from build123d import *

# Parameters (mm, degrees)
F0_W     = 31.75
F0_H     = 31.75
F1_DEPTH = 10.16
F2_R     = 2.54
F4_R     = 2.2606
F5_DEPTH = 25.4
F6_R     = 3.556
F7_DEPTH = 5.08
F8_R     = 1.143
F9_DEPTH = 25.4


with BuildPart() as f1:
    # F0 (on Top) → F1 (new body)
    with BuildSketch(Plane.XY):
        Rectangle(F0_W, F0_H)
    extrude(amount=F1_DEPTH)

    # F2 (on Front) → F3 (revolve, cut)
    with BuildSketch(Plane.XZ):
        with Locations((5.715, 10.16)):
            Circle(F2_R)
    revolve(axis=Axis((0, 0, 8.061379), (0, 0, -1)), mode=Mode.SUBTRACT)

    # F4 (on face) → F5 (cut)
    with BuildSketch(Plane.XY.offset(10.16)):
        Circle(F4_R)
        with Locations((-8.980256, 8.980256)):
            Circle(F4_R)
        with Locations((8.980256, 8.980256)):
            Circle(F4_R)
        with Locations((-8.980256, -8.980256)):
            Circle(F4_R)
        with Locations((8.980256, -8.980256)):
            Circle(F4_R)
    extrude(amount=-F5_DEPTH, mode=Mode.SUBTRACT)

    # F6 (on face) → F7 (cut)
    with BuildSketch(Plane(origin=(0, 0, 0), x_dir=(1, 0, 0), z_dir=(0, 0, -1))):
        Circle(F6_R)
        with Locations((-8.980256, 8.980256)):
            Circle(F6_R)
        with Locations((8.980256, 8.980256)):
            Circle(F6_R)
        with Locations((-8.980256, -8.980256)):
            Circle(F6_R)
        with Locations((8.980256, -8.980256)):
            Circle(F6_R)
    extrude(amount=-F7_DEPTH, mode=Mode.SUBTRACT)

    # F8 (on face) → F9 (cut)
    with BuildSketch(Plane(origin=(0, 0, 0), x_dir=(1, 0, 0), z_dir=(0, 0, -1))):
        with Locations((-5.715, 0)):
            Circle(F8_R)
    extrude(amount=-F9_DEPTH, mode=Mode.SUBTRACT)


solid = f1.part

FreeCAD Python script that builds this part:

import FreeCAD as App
import Part
import Sketcher
Q = App.Units.Quantity


def add_polygon(sketch, points):
    """Adds a closed chain of lines whose ends are joined by coincident constraints."""
    first, n = sketch.GeometryCount, len(points)
    for a, b in zip(points, points[1:] + points[:1]):
        sketch.addGeometry(Part.LineSegment(App.Vector(*a, 0), App.Vector(*b, 0)), False)
    for i in range(n):
        sketch.addConstraint(Sketcher.Constraint("Coincident", first + i, 2, first + (i + 1) % n, 1))

doc = App.newDocument("Part")
params = doc.addObject("Spreadsheet::Sheet", "Params")
for row, (alias, value) in enumerate([
    ("sketch1_width", "1.25 in"),
    ("pad1_length", "0.4 in"),
    ("sketch2_diameter", "0.2 in"),
    ("groove_angle", "360 deg"),
    ("sketch3_diameter", "0.178 in"),
    ("pocket1_length", "1 in"),
    ("sketch4_diameter", "0.28 in"),
    ("pocket2_length", "0.2 in"),
    ("sketch5_diameter", "0.09 in"),
    ("pocket3_length", "1 in"),
], start=1):
    params.set(f"A{row}", alias)
    params.set(f"B{row}", "=" + value)
    params.setAlias(f"B{row}", alias)

body = doc.addObject("PartDesign::Body", "Body")

sketch1 = body.newObject("Sketcher::SketchObject", "Sketch")
sketch1.AttachmentSupport = (doc.getObject("XY_Plane"), [""])
sketch1.MapMode = "FlatFace"
add_polygon(sketch1, [(-16, 16), (-16, -16), (16, -16), (16, 16)])
sketch1.addConstraint([
    Sketcher.Constraint("Vertical", 0),
    Sketcher.Constraint("Horizontal", 1),
    Sketcher.Constraint("Vertical", 2),
    Sketcher.Constraint("Horizontal", 3),
    Sketcher.Constraint("Symmetric", 0, 2, 2, 2, -1, 1),
    Sketcher.Constraint("Equal", 3, 0),
    Sketcher.Constraint("DistanceX", 1, 1, 1, 2, Q("1.25 in")),
])
sketch1.setExpression("Constraints[10]", "Params.sketch1_width")
pad1 = body.newObject("PartDesign::Pad", "Pad")
pad1.Profile = sketch1
pad1.setExpression("Length", "Params.pad1_length")

sketch2 = body.newObject("Sketcher::SketchObject", "Sketch001")
sketch2.AttachmentSupport = (doc.getObject("XZ_Plane"), [""])
sketch2.MapMode = "FlatFace"
sketch2.addGeometry(Part.Circle(App.Vector(5.7, 10.2, 0), App.Vector(0, 0, 1), 2.5), False)
sketch2.addConstraint([
    Sketcher.Constraint("Diameter", 0, Q("0.2 in")),
    Sketcher.Constraint("DistanceY", -1, 1, 0, 3, Q("0.4 in")),
    Sketcher.Constraint("DistanceX", -1, 1, 0, 3, Q("0.225 in")),
])
sketch2.setExpression("Constraints[0]", "Params.sketch2_diameter")
groove = body.newObject("PartDesign::Groove", "Groove")
groove.Profile = sketch2
groove.ReferenceAxis = (sketch2, ["V_Axis"])
groove.setExpression("Angle", "Params.groove_angle")

sketch3 = body.newObject("Sketcher::SketchObject", "Sketch002")
sketch3.AttachmentSupport = (doc.getObject("XY_Plane"), [""])
sketch3.MapMode = "FlatFace"
sketch3.AttachmentOffset = App.Placement(App.Vector(0, 0, 0.4 * 25.4), App.Rotation())
sketch3.addGeometry([
    Part.Circle(App.Vector(0, 0, 0), App.Vector(0, 0, 1), 2.3),
    Part.Circle(App.Vector(-9, 9, 0), App.Vector(0, 0, 1), 2.3),
    Part.Circle(App.Vector(9, 9, 0), App.Vector(0, 0, 1), 2.3),
    Part.Circle(App.Vector(-9, -9, 0), App.Vector(0, 0, 1), 2.3),
    Part.Circle(App.Vector(9, -9, 0), App.Vector(0, 0, 1), 2.3),
], False)
sketch3.addConstraint([
    Sketcher.Constraint("Coincident", 0, 3, -1, 1),
    Sketcher.Constraint("Equal", 0, 1),
    Sketcher.Constraint("Equal", 1, 2),
    Sketcher.Constraint("Equal", 2, 3),
    Sketcher.Constraint("Equal", 3, 4),
    Sketcher.Constraint("Symmetric", 2, 3, 3, 3, -1, 1),
    Sketcher.Constraint("Symmetric", 1, 3, 4, 3, -1, 1),
    Sketcher.Constraint("Symmetric", 1, 3, 2, 3, -2),
    Sketcher.Constraint("Diameter", 0, Q("0.178 in")),
    Sketcher.Constraint("DistanceX", 1, 3, -1, 1, 8.980256),
    Sketcher.Constraint("DistanceY", -1, 1, 1, 3, 8.980256),
])
sketch3.setExpression("Constraints[8]", "Params.sketch3_diameter")
pocket1 = body.newObject("PartDesign::Pocket", "Pocket")
pocket1.Profile = sketch3
pocket1.setExpression("Length", "Params.pocket1_length")

sketch4 = body.newObject("Sketcher::SketchObject", "Sketch003")
sketch4.AttachmentSupport = (doc.getObject("XY_Plane"), [""])
sketch4.MapMode = "FlatFace"
sketch4.addGeometry([
    Part.Circle(App.Vector(0, 0, 0), App.Vector(0, 0, 1), 3.6),
    Part.Circle(App.Vector(-9, -9, 0), App.Vector(0, 0, 1), 3.6),
    Part.Circle(App.Vector(9, -9, 0), App.Vector(0, 0, 1), 3.6),
    Part.Circle(App.Vector(-9, 9, 0), App.Vector(0, 0, 1), 3.6),
    Part.Circle(App.Vector(9, 9, 0), App.Vector(0, 0, 1), 3.6),
], False)
sketch4.addConstraint([
    Sketcher.Constraint("Coincident", 0, 3, -1, 1),
    Sketcher.Constraint("Equal", 0, 1),
    Sketcher.Constraint("Equal", 1, 2),
    Sketcher.Constraint("Equal", 2, 3),
    Sketcher.Constraint("Equal", 3, 4),
    Sketcher.Constraint("Symmetric", 2, 3, 3, 3, -1, 1),
    Sketcher.Constraint("Symmetric", 1, 3, 4, 3, -1, 1),
    Sketcher.Constraint("Symmetric", 1, 3, 2, 3, -2),
    Sketcher.Constraint("Diameter", 0, Q("0.28 in")),
    Sketcher.Constraint("DistanceX", 1, 3, -1, 1, 8.980256),
    Sketcher.Constraint("DistanceY", 1, 3, -1, 1, 8.980256),
])
sketch4.setExpression("Constraints[8]", "Params.sketch4_diameter")
pocket2 = body.newObject("PartDesign::Pocket", "Pocket001")
pocket2.Profile = sketch4
pocket2.setExpression("Length", "Params.pocket2_length")
pocket2.Reversed = True

sketch5 = body.newObject("Sketcher::SketchObject", "Sketch004")
sketch5.AttachmentSupport = (doc.getObject("XY_Plane"), [""])
sketch5.MapMode = "FlatFace"
sketch5.addGeometry(Part.Circle(App.Vector(-5.7, 0, 0), App.Vector(0, 0, 1), 1.1), False)
sketch5.addConstraint([
    Sketcher.Constraint("PointOnObject", 0, 3, -1),
    Sketcher.Constraint("Diameter", 0, Q("0.09 in")),
    Sketcher.Constraint("DistanceX", 0, 3, -1, 1, Q("0.225 in")),
])
sketch5.setExpression("Constraints[1]", "Params.sketch5_diameter")
pocket3 = body.newObject("PartDesign::Pocket", "Pocket002")
pocket3.Profile = sketch5
pocket3.setExpression("Length", "Params.pocket3_length")
pocket3.Reversed = True

doc.recompute()
